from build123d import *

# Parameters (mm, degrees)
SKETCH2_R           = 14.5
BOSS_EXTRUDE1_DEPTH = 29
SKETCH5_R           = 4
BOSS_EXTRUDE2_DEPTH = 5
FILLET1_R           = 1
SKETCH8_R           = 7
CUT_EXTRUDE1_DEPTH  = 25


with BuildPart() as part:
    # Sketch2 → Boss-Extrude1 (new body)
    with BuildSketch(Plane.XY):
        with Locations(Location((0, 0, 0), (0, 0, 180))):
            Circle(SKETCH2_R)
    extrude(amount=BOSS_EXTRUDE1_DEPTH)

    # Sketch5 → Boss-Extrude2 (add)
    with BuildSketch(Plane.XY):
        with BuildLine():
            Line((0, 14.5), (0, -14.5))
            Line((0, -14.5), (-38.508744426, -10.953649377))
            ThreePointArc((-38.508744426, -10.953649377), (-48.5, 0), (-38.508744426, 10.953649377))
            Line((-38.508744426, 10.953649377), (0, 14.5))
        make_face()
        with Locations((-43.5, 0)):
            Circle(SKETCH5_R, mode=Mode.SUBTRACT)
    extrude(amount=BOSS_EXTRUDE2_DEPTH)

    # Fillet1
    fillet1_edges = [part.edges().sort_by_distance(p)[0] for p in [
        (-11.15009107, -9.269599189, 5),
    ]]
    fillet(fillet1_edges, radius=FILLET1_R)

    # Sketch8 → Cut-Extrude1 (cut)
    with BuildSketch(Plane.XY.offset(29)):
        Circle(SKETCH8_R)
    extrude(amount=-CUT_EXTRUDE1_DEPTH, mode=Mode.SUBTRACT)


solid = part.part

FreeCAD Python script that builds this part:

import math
import FreeCAD as App
import Part
import Sketcher

V = App.Vector
Q = App.Units.Quantity


def edges_at(feature, points):
    """Names of the edges that pass closest to the given points."""
    edges = feature.Shape.Edges
    near = lambda p: min(range(len(edges)), key=lambda i: edges[i].distToShape(Part.Vertex(*p))[0])
    return sorted({f"Edge{near(p) + 1}" for p in points})

doc = App.newDocument("Part")
body = doc.addObject("PartDesign::Body", "Body")

# Sketch on XY plane
sketch1 = body.newObject("Sketcher::SketchObject", "Sketch")
sketch1.AttachmentSupport = (doc.getObject("XY_Plane"), [""])
sketch1.MapMode = "FlatFace"
sketch1.addGeometry(Part.Circle(V(0, 0, 0), V(0, 0, 1), 14), False)
sketch1.addConstraint([
    Sketcher.Constraint("Coincident", 0, 3, -1, 1),
    Sketcher.Constraint("Diameter", 0, Q("29 mm")),
])
pad1 = body.newObject("PartDesign::Pad", "Pad")
pad1.Profile = sketch1
pad1.Length = 29

# Sketch on XY plane
sketch2 = body.newObject("Sketcher::SketchObject", "Sketch001")
sketch2.AttachmentSupport = (doc.getObject("XY_Plane"), [""])
sketch2.MapMode = "FlatFace"
sketch2.addGeometry([
    Part.LineSegment(V(0, -14.5, 0), V(0, 14.5, 0)),  # 0
    Part.LineSegment(V(0, 14.5, 0), V(-38.5, 11, 0)),  # 1
    Part.ArcOfCircle(Part.Circle(V(-37.5, 0, 0), V(0, 0, 1), 11), math.radians(95), math.radians(265)),  # 2
    Part.LineSegment(V(-38.5, -11, 0), V(0, -14.5, 0)),  # 3
    Part.Circle(V(-43.5, 0, 0), V(0, 0, 1), 4),  # 4
], False)
sketch2.addConstraint([
    Sketcher.Constraint("Coincident", 0, 2, 1, 1),
    Sketcher.Constraint("Tangent", 1, 2, 2, 1),
    Sketcher.Constraint("Tangent", 2, 2, 3, 1),
    Sketcher.Constraint("Coincident", 3, 2, 0, 1),
    Sketcher.Constraint("Vertical", 0),
    Sketcher.Constraint("Symmetric", 0, 2, 3, 2, -1, 1),
    Sketcher.Constraint("PointOnObject", 2, 3, -1),
    Sketcher.Constraint("PointOnObject", 4, 3, -1),
    Sketcher.Constraint("Diameter", 4, Q("8 mm")),
    Sketcher.Constraint("Radius", 2, Q("11 mm")),
    Sketcher.Constraint("DistanceY", 0, 1, 0, 2, Q("29 mm")),
    Sketcher.Constraint("DistanceX", 4, 3, 2, 3, Q("6 mm")),
    Sketcher.Constraint("DistanceX", 2, 3, -1, 1, Q("37.5 mm")),
])
pad2 = body.newObject("PartDesign::Pad", "Pad001")
pad2.Profile = sketch2
pad2.Length = 5
doc.recompute()

fillet = body.newObject("PartDesign::Fillet", "Fillet")
fillet.Base = (pad2, edges_at(pad2, [(-11.15, -9.27, 5)]))
fillet.Radius = 1

# Sketch on XY plane
sketch3 = body.newObject("Sketcher::SketchObject", "Sketch002")
sketch3.AttachmentSupport = (doc.getObject("XY_Plane"), [""])
sketch3.MapMode = "FlatFace"
sketch3.AttachmentOffset = App.Placement(V(0, 0, 29), App.Rotation())
sketch3.addGeometry(Part.Circle(V(0, 0, 0), V(0, 0, 1), 7), False)
sketch3.addConstraint([
    Sketcher.Constraint("Coincident", 0, 3, -1, 1),
    Sketcher.Constraint("Diameter", 0, Q("14 mm")),
])
pocket1 = body.newObject("PartDesign::Pocket", "Pocket")
pocket1.Profile = sketch3
pocket1.Length = 25

doc.recompute()
